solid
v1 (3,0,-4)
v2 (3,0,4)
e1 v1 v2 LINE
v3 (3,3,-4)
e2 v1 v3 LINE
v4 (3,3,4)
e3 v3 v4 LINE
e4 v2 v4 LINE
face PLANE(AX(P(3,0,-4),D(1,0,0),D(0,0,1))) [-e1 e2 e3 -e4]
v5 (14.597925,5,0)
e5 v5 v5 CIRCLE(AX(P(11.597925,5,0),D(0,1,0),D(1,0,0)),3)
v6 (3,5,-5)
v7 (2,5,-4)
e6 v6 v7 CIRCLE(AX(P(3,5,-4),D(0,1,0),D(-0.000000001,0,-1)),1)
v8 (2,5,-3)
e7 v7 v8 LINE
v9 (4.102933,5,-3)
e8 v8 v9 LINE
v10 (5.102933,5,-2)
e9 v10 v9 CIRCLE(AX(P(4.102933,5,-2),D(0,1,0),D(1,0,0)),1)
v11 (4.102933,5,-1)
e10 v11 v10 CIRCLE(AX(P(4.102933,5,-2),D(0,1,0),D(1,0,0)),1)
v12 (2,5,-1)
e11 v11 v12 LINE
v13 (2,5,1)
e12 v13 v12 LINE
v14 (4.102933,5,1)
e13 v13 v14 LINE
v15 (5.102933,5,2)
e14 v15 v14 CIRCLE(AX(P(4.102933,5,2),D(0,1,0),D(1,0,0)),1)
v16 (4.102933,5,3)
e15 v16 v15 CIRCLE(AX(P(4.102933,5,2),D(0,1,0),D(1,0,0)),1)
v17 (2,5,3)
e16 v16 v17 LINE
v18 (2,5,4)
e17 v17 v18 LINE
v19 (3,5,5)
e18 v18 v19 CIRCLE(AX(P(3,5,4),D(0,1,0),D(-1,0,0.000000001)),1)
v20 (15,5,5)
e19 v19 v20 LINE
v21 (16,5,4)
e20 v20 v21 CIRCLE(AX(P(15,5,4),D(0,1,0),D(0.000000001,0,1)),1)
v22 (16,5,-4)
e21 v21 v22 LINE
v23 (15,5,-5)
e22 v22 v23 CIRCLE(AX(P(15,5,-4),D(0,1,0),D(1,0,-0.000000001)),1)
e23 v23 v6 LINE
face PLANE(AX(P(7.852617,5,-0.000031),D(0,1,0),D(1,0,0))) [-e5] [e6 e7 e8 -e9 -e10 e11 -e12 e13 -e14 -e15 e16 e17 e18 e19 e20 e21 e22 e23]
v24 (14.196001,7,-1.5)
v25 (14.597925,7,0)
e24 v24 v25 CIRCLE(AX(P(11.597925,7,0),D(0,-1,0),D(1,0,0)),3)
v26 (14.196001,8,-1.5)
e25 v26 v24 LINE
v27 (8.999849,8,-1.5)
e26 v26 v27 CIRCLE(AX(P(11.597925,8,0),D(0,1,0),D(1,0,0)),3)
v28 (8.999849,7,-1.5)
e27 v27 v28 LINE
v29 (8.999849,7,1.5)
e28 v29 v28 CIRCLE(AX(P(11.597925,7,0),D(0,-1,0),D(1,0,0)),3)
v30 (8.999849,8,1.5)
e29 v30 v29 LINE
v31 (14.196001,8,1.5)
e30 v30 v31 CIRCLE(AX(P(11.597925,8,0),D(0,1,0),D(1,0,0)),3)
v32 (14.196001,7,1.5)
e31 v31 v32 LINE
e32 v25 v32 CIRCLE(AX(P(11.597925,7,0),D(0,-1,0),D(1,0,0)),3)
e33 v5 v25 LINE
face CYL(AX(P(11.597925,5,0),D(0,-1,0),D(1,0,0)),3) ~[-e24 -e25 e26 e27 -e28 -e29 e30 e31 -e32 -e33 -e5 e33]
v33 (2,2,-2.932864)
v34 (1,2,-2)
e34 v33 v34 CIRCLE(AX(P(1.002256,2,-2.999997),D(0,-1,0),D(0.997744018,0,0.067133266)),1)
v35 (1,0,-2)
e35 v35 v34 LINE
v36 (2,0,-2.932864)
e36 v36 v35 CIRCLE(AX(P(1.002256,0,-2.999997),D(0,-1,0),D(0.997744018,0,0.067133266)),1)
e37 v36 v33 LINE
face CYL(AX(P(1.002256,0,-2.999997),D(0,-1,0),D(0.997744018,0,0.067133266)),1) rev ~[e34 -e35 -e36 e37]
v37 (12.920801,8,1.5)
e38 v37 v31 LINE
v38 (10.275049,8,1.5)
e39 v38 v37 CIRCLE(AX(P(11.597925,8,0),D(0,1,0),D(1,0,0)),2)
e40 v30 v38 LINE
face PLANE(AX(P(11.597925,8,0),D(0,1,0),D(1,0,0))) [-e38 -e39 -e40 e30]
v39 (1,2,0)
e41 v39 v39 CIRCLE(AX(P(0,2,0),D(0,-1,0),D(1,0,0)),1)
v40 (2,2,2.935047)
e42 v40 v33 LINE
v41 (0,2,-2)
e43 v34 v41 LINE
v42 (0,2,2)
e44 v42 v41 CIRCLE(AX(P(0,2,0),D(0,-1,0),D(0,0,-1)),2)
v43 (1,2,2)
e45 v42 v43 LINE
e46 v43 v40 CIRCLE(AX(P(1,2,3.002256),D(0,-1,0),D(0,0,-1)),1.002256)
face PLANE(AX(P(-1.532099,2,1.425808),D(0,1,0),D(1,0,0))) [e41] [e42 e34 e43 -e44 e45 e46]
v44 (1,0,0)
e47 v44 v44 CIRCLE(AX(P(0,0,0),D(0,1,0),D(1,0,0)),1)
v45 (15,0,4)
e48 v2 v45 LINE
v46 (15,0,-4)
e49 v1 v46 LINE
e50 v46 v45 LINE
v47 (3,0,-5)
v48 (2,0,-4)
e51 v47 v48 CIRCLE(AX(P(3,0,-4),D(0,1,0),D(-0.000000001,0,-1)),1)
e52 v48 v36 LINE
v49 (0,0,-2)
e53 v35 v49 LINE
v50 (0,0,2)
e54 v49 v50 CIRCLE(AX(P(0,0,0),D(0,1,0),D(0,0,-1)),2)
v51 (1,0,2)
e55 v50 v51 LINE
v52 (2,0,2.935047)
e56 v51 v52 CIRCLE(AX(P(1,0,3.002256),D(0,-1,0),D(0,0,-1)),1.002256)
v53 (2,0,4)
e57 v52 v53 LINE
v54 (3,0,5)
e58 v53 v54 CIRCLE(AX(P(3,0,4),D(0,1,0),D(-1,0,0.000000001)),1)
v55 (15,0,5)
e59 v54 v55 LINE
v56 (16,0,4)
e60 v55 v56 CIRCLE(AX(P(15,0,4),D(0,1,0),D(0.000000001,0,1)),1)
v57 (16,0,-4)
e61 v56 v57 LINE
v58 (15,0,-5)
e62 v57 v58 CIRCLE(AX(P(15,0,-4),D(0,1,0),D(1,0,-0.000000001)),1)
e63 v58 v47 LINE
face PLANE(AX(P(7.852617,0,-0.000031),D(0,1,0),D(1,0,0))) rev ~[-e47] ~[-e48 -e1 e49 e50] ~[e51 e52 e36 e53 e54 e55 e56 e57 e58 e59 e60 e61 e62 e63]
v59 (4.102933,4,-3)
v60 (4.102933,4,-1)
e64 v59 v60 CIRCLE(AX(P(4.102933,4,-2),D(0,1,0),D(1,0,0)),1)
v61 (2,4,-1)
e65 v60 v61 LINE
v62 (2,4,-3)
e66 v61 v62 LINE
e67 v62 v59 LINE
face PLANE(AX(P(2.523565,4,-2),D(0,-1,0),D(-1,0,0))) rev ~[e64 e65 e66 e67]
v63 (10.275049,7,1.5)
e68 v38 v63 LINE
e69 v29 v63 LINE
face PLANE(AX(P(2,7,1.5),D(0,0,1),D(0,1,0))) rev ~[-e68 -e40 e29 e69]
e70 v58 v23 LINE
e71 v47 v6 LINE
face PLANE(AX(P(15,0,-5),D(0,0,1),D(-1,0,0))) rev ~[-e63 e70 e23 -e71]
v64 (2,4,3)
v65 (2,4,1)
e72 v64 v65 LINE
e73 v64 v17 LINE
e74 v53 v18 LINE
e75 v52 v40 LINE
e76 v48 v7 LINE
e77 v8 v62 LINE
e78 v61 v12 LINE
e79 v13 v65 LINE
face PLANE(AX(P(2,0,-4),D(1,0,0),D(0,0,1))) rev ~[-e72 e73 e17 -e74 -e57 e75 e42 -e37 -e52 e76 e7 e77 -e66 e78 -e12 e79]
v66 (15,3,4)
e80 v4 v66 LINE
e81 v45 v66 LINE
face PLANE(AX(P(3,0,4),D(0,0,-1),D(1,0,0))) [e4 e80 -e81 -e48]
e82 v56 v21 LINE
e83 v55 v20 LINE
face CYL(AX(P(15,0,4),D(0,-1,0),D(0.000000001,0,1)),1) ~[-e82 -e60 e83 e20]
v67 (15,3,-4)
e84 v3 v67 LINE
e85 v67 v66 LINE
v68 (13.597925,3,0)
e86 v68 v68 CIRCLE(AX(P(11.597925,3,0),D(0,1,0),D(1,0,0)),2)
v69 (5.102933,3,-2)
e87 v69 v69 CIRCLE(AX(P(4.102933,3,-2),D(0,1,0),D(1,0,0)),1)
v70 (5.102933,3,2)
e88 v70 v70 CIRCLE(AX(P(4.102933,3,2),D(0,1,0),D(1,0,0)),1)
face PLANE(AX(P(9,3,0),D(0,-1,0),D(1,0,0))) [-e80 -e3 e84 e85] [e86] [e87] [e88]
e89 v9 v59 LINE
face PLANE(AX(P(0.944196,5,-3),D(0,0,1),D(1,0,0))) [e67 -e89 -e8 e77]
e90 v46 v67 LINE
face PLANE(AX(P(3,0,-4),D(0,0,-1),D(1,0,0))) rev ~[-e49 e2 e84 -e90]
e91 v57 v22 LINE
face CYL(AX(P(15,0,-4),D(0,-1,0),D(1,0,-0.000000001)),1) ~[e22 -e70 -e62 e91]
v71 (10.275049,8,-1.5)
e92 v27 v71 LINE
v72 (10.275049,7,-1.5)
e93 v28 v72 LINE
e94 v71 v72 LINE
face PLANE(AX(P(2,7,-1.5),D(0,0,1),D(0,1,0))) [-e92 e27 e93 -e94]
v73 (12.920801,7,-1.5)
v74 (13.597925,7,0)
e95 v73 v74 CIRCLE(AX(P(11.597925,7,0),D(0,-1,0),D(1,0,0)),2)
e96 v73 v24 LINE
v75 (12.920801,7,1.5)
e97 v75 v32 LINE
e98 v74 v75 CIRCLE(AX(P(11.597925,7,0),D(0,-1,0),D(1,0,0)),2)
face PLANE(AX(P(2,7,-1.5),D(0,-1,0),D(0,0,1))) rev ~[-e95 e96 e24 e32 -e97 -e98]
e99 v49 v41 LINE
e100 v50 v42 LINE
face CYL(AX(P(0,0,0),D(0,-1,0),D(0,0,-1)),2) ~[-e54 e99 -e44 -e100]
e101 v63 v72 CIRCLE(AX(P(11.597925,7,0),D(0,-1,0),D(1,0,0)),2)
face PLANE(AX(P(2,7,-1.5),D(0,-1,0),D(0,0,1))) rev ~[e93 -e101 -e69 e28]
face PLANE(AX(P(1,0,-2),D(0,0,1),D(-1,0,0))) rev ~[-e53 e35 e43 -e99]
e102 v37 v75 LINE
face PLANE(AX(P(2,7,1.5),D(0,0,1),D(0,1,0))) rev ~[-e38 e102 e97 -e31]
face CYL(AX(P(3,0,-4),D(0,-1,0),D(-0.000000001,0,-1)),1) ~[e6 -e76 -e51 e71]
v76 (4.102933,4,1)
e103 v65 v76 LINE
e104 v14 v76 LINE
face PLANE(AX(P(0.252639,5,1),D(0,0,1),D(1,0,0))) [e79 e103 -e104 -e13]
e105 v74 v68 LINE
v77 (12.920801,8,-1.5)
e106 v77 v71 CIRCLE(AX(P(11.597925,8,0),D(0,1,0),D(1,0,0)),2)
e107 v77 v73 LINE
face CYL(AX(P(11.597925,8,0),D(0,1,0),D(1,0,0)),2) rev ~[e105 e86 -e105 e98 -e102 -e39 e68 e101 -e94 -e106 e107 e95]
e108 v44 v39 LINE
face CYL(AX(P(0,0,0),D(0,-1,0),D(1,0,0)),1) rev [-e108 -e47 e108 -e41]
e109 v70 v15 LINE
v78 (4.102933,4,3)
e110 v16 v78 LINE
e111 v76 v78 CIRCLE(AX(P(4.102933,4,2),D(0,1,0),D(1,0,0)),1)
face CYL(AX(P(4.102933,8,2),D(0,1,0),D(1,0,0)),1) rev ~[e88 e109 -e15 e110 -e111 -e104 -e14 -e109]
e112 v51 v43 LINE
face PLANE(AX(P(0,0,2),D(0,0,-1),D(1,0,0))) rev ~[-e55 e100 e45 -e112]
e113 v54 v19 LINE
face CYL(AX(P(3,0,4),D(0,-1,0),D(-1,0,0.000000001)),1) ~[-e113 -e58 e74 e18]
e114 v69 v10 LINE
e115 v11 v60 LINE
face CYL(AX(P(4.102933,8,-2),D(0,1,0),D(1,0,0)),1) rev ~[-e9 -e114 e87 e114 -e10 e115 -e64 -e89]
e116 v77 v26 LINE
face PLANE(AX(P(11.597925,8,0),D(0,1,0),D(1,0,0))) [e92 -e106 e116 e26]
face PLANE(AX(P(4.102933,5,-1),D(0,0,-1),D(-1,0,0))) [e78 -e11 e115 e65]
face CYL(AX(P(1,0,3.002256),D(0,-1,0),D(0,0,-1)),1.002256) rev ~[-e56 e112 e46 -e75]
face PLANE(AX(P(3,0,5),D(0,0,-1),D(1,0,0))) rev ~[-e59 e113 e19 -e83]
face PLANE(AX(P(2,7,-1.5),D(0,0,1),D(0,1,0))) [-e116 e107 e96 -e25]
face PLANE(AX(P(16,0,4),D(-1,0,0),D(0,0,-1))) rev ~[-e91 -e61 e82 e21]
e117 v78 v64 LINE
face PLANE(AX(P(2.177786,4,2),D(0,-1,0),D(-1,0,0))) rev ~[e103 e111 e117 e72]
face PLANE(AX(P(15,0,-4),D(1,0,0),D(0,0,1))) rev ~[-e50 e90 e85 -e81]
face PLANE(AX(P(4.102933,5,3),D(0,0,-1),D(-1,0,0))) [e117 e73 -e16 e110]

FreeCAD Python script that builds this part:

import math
import FreeCAD as App
import Part
import Sketcher


def add_polygon(sketch, points):
    """Adds a closed chain of lines whose ends are joined by coincident constraints."""
    first, n = sketch.GeometryCount, len(points)
    for a, b in zip(points, points[1:] + points[:1]):
        sketch.addGeometry(Part.LineSegment(App.Vector(*a, 0), App.Vector(*b, 0)), False)
    for i in range(n):
        sketch.addConstraint(Sketcher.Constraint("Coincident", first + i, 2, first + (i + 1) % n, 1))

doc = App.newDocument("Part")
params = doc.addObject("Spreadsheet::Sheet", "Params")
for row, (alias, value) in enumerate([
    ("sketch1_diameter", "2 mm"),
    ("sketch1_radius", "2 mm"),
    ("sketch1_width", "1 mm"),
    ("sketch1_width2", "12 mm"),
    ("sketch1_height", "8 mm"),
    ("pad1_length", "5 mm"),
    ("sketch2_width", "12 mm"),
    ("sketch2_height", "8 mm"),
    ("pocket1_length", "3 mm"),
    ("sketch3_diameter", "6 mm"),
    ("sketch3_diameter2", "4 mm"),
    ("pad2_length", "3 mm"),
    ("sketch4_width", "1 mm"),
    ("sketch4_height", "3 mm"),
    ("pocket2_length", "17 mm"),
    ("sketch5_diameter", "4 mm"),
    ("sketch5_diameter2", "2 mm"),
    ("pocket3_length", "6 mm"),
    ("sketch6_radius", "1 mm"),
    ("pocket4_length", "1 mm"),
], start=1):
    params.set(f"A{row}", alias)
    params.set(f"B{row}", "=" + value)
    params.setAlias(f"B{row}", alias)

body = doc.addObject("PartDesign::Body", "Body")

sketch1 = doc.addObject("Sketcher::SketchObject", "Sketch")
body.addObject(sketch1)
sketch1.AttachmentSupport = (doc.XZ_Plane, [""])
sketch1.MapMode = "FlatFace"
sketch1.addGeometry(Part.LineSegment(App.Vector(1, -2, 0), App.Vector(0, -2, 0)), False)
sketch1.addGeometry(Part.ArcOfCircle(Part.Circle(App.Vector(0, 0, 0), App.Vector(0, 0, 1), 2), math.radians(90), math.radians(270)), False)
sketch1.addGeometry(Part.LineSegment(App.Vector(0, 2, 0), App.Vector(1, 2, 0)), False)
sketch1.addGeometry(Part.ArcOfCircle(Part.Circle(App.Vector(1, 3, 0), App.Vector(0, 0, 1), 1), math.radians(-90), math.radians(-4)), False)
sketch1.addGeometry(Part.LineSegment(App.Vector(2, 2.9, 0), App.Vector(2, 4, 0)), False)
sketch1.addGeometry(Part.ArcOfCircle(Part.Circle(App.Vector(3, 4, 0), App.Vector(0, 0, 1), 1), math.radians(90), math.radians(180)), False)
sketch1.addGeometry(Part.LineSegment(App.Vector(3, 5, 0), App.Vector(15, 5, 0)), False)
sketch1.addGeometry(Part.ArcOfCircle(Part.Circle(App.Vector(15, 4, 0), App.Vector(0, 0, 1), 1), math.radians(0), math.radians(90)), False)
sketch1.addGeometry(Part.LineSegment(App.Vector(16, 4, 0), App.Vector(16, -4, 0)), False)
sketch1.addGeometry(Part.ArcOfCircle(Part.Circle(App.Vector(15, -4, 0), App.Vector(0, 0, 1), 1), math.radians(-90), math.radians(0)), False)
sketch1.addGeometry(Part.LineSegment(App.Vector(15, -5, 0), App.Vector(3, -5, 0)), False)
sketch1.addGeometry(Part.ArcOfCircle(Part.Circle(App.Vector(3, -4, 0), App.Vector(0, 0, 1), 1), math.radians(-180), math.radians(-90)), False)
sketch1.addGeometry(Part.LineSegment(App.Vector(2, -4, 0), App.Vector(2, -2.9, 0)), False)
sketch1.addGeometry(Part.ArcOfCircle(Part.Circle(App.Vector(1, -3, 0), App.Vector(0, 0, 1), 1), math.radians(4), math.radians(90)), False)
sketch1.addGeometry(Part.Circle(App.Vector(0, 0, 0), App.Vector(0, 0, 1), 1), False)
sketch1.addConstraint(Sketcher.Constraint("Tangent", 0, 2, 1, 2))
sketch1.addConstraint(Sketcher.Constraint("Tangent", 1, 1, 2, 1))
sketch1.addConstraint(Sketcher.Constraint("Tangent", 2, 2, 3, 1))
sketch1.addConstraint(Sketcher.Constraint("Coincident", 3, 2, 4, 1))
sketch1.addConstraint(Sketcher.Constraint("Tangent", 4, 2, 5, 2))
sketch1.addConstraint(Sketcher.Constraint("Tangent", 5, 1, 6, 1))
sketch1.addConstraint(Sketcher.Constraint("Tangent", 6, 2, 7, 2))
sketch1.addConstraint(Sketcher.Constraint("Tangent", 7, 1, 8, 1))
sketch1.addConstraint(Sketcher.Constraint("Tangent", 8, 2, 9, 2))
sketch1.addConstraint(Sketcher.Constraint("Tangent", 9, 1, 10, 1))
sketch1.addConstraint(Sketcher.Constraint("Tangent", 10, 2, 11, 2))
sketch1.addConstraint(Sketcher.Constraint("Tangent", 11, 1, 12, 1))
sketch1.addConstraint(Sketcher.Constraint("Coincident", 12, 2, 13, 1))
sketch1.addConstraint(Sketcher.Constraint("Coincident", 13, 2, 0, 1))
sketch1.addConstraint(Sketcher.Constraint("Horizontal", 0))
sketch1.addConstraint(Sketcher.Constraint("Horizontal", 2))
sketch1.addConstraint(Sketcher.Constraint("Vertical", 4))
sketch1.addConstraint(Sketcher.Constraint("Horizontal", 6))
sketch1.addConstraint(Sketcher.Constraint("Vertical", 8))
sketch1.addConstraint(Sketcher.Constraint("Horizontal", 10))
sketch1.addConstraint(Sketcher.Constraint("Vertical", 12))
sketch1.addConstraint(Sketcher.Constraint("Coincident", 1, 3, -1, 1))
sketch1.addConstraint(Sketcher.Constraint("Coincident", 14, 3, -1, 1))
sketch1.addConstraint(Sketcher.Constraint("Equal", 5, 7))
sketch1.addConstraint(Sketcher.Constraint("Equal", 7, 9))
sketch1.addConstraint(Sketcher.Constraint("Equal", 9, 11))
sketch1.addConstraint(Sketcher.Constraint("Equal", 11, 13))
sketch1.addConstraint(Sketcher.Constraint("Equal", 13, 14))
sketch1.addConstraint(Sketcher.Constraint("Symmetric", 5, 3, 11, 3, -1))
sketch1.addConstraint(Sketcher.Constraint("Vertical", 2, 2, 13, 2))
sketch1.addConstraint(Sketcher.Constraint("Diameter", 14, 2.0))
sketch1.addConstraint(Sketcher.Constraint("Radius", 1, 2.0))
sketch1.addConstraint(Sketcher.Constraint("DistanceX", 0, 2, 0, 1, 1.0))
sketch1.addConstraint(Sketcher.Constraint("DistanceX", 6, 1, 6, 2, 12.0))
sketch1.addConstraint(Sketcher.Constraint("DistanceY", 8, 2, 8, 1, 8.0))
sketch1.addConstraint(Sketcher.Constraint("DistanceX", -1, 1, 5, 3, 3.0))
sketch1.addConstraint(Sketcher.Constraint("Radius", 3, 1.002256))
sketch1.addConstraint(Sketcher.Constraint("DistanceY", 12, 1, 12, 2, 1.067136))
sketch1.setExpression("Constraints[30]", "Params.sketch1_diameter")
sketch1.setExpression("Constraints[31]", "Params.sketch1_radius")
sketch1.setExpression("Constraints[32]", "Params.sketch1_width")
sketch1.setExpression("Constraints[33]", "Params.sketch1_width2")
sketch1.setExpression("Constraints[34]", "Params.sketch1_height")
pad1 = doc.addObject("PartDesign::Pad", "Pad")
body.addObject(pad1)
pad1.Profile = sketch1
pad1.setExpression("Length", "Params.pad1_length")
pad1.Reversed = True

sketch2 = doc.addObject("Sketcher::SketchObject", "Sketch001")
body.addObject(sketch2)
sketch2.AttachmentSupport = (doc.XZ_Plane, [""])
sketch2.MapMode = "FlatFace"
add_polygon(sketch2, [(3, 4), (3, -4), (15, -4), (15, 4)])
sketch2.addConstraint(Sketcher.Constraint("Vertical", 0))
sketch2.addConstraint(Sketcher.Constraint("Horizontal", 1))
sketch2.addConstraint(Sketcher.Constraint("Vertical", 2))
sketch2.addConstraint(Sketcher.Constraint("Horizontal", 3))
sketch2.addConstraint(Sketcher.Constraint("DistanceX", 1, 1, 1, 2, 12.0))
sketch2.addConstraint(Sketcher.Constraint("DistanceY", 0, 2, 0, 1, 8.0))
sketch2.addConstraint(Sketcher.Constraint("DistanceX", -1, 1, 0, 2, 3.0))
sketch2.addConstraint(Sketcher.Constraint("DistanceY", 0, 2, -1, 1, 4.0))
sketch2.setExpression("Constraints[8]", "Params.sketch2_width")
sketch2.setExpression("Constraints[9]", "Params.sketch2_height")
pocket1 = doc.addObject("PartDesign::Pocket", "Pocket")
body.addObject(pocket1)
pocket1.Profile = sketch2
pocket1.setExpression("Length", "Params.pocket1_length")

sketch3 = doc.addObject("Sketcher::SketchObject", "Sketch002")
body.addObject(sketch3)
sketch3.AttachmentSupport = (doc.XZ_Plane, [""])
sketch3.MapMode = "FlatFace"
sketch3.AttachmentOffset = App.Placement(App.Vector(0, 0, -5), App.Rotation())
sketch3.addGeometry(Part.Circle(App.Vector(11.6, 0, 0), App.Vector(0, 0, 1), 3), False)
sketch3.addGeometry(Part.Circle(App.Vector(11.6, 0, 0), App.Vector(0, 0, 1), 2), False)
sketch3.addConstraint(Sketcher.Constraint("Coincident", 1, 3, 0, 3))
sketch3.addConstraint(Sketcher.Constraint("PointOnObject", 0, 3, -1))
sketch3.addConstraint(Sketcher.Constraint("Diameter", 0, 6.0))
sketch3.addConstraint(Sketcher.Constraint("Diameter", 1, 4.0))
sketch3.addConstraint(Sketcher.Constraint("DistanceX", -1, 1, 0, 3, 11.597925))
sketch3.setExpression("Constraints[2]", "Params.sketch3_diameter")
sketch3.setExpression("Constraints[3]", "Params.sketch3_diameter2")
pad2 = doc.addObject("PartDesign::Pad", "Pad001")
body.addObject(pad2)
pad2.Profile = sketch3
pad2.setExpression("Length", "Params.pad2_length")
pad2.Reversed = True

sketch4 = doc.addObject("Sketcher::SketchObject", "Sketch003")
body.addObject(sketch4)
sketch4.AttachmentSupport = (doc.YZ_Plane, [""])
sketch4.MapMode = "FlatFace"
sketch4.AttachmentOffset = App.Placement(App.Vector(0, 0, 2), App.Rotation())
add_polygon(sketch4, [(8, -1.5), (7, -1.5), (7, 1.5), (8, 1.5)])
sketch4.addConstraint(Sketcher.Constraint("Horizontal", 0))
sketch4.addConstraint(Sketcher.Constraint("Vertical", 1))
sketch4.addConstraint(Sketcher.Constraint("Horizontal", 2))
sketch4.addConstraint(Sketcher.Constraint("Vertical", 3))
sketch4.addConstraint(Sketcher.Constraint("DistanceX", 0, 2, 0, 1, 1.0))
sketch4.addConstraint(Sketcher.Constraint("DistanceY", 1, 1, 1, 2, 3.0))
sketch4.addConstraint(Sketcher.Constraint("DistanceX", -1, 1, 0, 2, 7.0))
sketch4.addConstraint(Sketcher.Constraint("DistanceY", 0, 2, -1, 1, 1.5))
sketch4.setExpression("Constraints[8]", "Params.sketch4_width")
sketch4.setExpression("Constraints[9]", "Params.sketch4_height")
pocket2 = doc.addObject("PartDesign::Pocket", "Pocket001")
body.addObject(pocket2)
pocket2.Profile = sketch4
pocket2.setExpression("Length", "Params.pocket2_length")
pocket2.Reversed = True

sketch5 = doc.addObject("Sketcher::SketchObject", "Sketch004")
body.addObject(sketch5)
sketch5.AttachmentSupport = (doc.XZ_Plane, [""])
sketch5.MapMode = "FlatFace"
sketch5.AttachmentOffset = App.Placement(App.Vector(0, 0, -8), App.Rotation())
sketch5.addGeometry(Part.Circle(App.Vector(11.6, 0, 0), App.Vector(0, 0, 1), 2), False)
sketch5.addGeometry(Part.Circle(App.Vector(4.1, 2, 0), App.Vector(0, 0, 1), 1), False)
sketch5.addGeometry(Part.Circle(App.Vector(4.1, -2, 0), App.Vector(0, 0, 1), 1), False)
add_polygon(sketch5, [(-5.1, -2.9), (-5.1, 5.8), (2, 5.8), (2, -2.9)])
sketch5.addConstraint(Sketcher.Constraint("Vertical", 3))
sketch5.addConstraint(Sketcher.Constraint("Horizontal", 4))
sketch5.addConstraint(Sketcher.Constraint("Vertical", 5))
sketch5.addConstraint(Sketcher.Constraint("Horizontal", 6))
sketch5.addConstraint(Sketcher.Constraint("Equal", 1, 2))
sketch5.addConstraint(Sketcher.Constraint("Symmetric", 1, 3, 2, 3, -1))
sketch5.addConstraint(Sketcher.Constraint("PointOnObject", 0, 3, -1))
sketch5.addConstraint(Sketcher.Constraint("Diameter", 0, 4.0))
sketch5.addConstraint(Sketcher.Constraint("Diameter", 1, 2.0))
sketch5.addConstraint(Sketcher.Constraint("DistanceY", -1, 1, 1, 3, 2.0))
sketch5.addConstraint(Sketcher.Constraint("DistanceX", -1, 1, 4, 2, 2.0))
sketch5.addConstraint(Sketcher.Constraint("DistanceX", 4, 1, 4, 2, 7.064198))
sketch5.addConstraint(Sketcher.Constraint("DistanceY", 3, 1, 3, 2, 8.717344))
sketch5.addConstraint(Sketcher.Constraint("DistanceY", -1, 1, 3, 2, 5.78448))
sketch5.addConstraint(Sketcher.Constraint("DistanceX", 1, 3, 0, 3, 7.494991))
sketch5.addConstraint(Sketcher.Constraint("DistanceX", 3, 2, 1, 3, 9.167132))
sketch5.setExpression("Constraints[11]", "Params.sketch5_diameter")
sketch5.setExpression("Constraints[12]", "Params.sketch5_diameter2")
pocket3 = doc.addObject("PartDesign::Pocket", "Pocket002")
body.addObject(pocket3)
pocket3.Profile = sketch5
pocket3.setExpression("Length", "Params.pocket3_length")
pocket3.Reversed = True

sketch6 = doc.addObject("Sketcher::SketchObject", "Sketch005")
body.addObject(sketch6)
sketch6.AttachmentSupport = (doc.XZ_Plane, [""])
sketch6.MapMode = "FlatFace"
sketch6.AttachmentOffset = App.Placement(App.Vector(0, 0, -5), App.Rotation())
sketch6.addGeometry(Part.LineSegment(App.Vector(0.3, 3, 0), App.Vector(4.1, 3, 0)), False)
sketch6.addGeometry(Part.ArcOfCircle(Part.Circle(App.Vector(4.1, 2, 0), App.Vector(0, 0, 1), 1), math.radians(-90), math.radians(90)), False)
sketch6.addGeometry(Part.LineSegment(App.Vector(4.1, 1, 0), App.Vector(0.3, 1, 0)), False)
sketch6.addGeometry(Part.ArcOfCircle(Part.Circle(App.Vector(0.3, 2, 0), App.Vector(0, 0, 1), 1), math.radians(90), math.radians(270)), False)
sketch6.addGeometry(Part.LineSegment(App.Vector(0.9, -1, 0), App.Vector(4.1, -1, 0)), False)
sketch6.addGeometry(Part.ArcOfCircle(Part.Circle(App.Vector(4.1, -2, 0), App.Vector(0, 0, 1), 1), math.radians(-90), math.radians(90)), False)
sketch6.addGeometry(Part.LineSegment(App.Vector(4.1, -3, 0), App.Vector(0.9, -3, 0)), False)
sketch6.addGeometry(Part.ArcOfCircle(Part.Circle(App.Vector(0.9, -2, 0), App.Vector(0, 0, 1), 1), math.radians(90), math.radians(270)), False)
sketch6.addConstraint(Sketcher.Constraint("Tangent", 0, 2, 1, 2))
sketch6.addConstraint(Sketcher.Constraint("Tangent", 1, 1, 2, 1))
sketch6.addConstraint(Sketcher.Constraint("Tangent", 2, 2, 3, 2))
sketch6.addConstraint(Sketcher.Constraint("Tangent", 3, 1, 0, 1))
sketch6.addConstraint(Sketcher.Constraint("Tangent", 4, 2, 5, 2))
sketch6.addConstraint(Sketcher.Constraint("Tangent", 5, 1, 6, 1))
sketch6.addConstraint(Sketcher.Constraint("Tangent", 6, 2, 7, 2))
sketch6.addConstraint(Sketcher.Constraint("Tangent", 7, 1, 4, 1))
sketch6.addConstraint(Sketcher.Constraint("Horizontal", 0))
sketch6.addConstraint(Sketcher.Constraint("Horizontal", 2))
sketch6.addConstraint(Sketcher.Constraint("Horizontal", 4))
sketch6.addConstraint(Sketcher.Constraint("Horizontal", 6))
sketch6.addConstraint(Sketcher.Constraint("Equal", 3, 5))
sketch6.addConstraint(Sketcher.Constraint("Symmetric", 1, 3, 5, 3, -1))
sketch6.addConstraint(Sketcher.Constraint("Radius", 1, 1.0))
sketch6.addConstraint(Sketcher.Constraint("DistanceY", -1, 1, 1, 3, 2.0))
sketch6.addConstraint(Sketcher.Constraint("DistanceX", 0, 1, 0, 2, 3.850295))
sketch6.addConstraint(Sketcher.Constraint("DistanceX", 4, 1, 4, 2, 3.158737))
sketch6.addConstraint(Sketcher.Constraint("DistanceX", -1, 1, 3, 3, 0.252639))
sketch6.setExpression("Constraints[14]", "Params.sketch6_radius")
pocket4 = doc.addObject("PartDesign::Pocket", "Pocket003")
body.addObject(pocket4)
pocket4.Profile = sketch6
pocket4.setExpression("Length", "Params.pocket4_length")
pocket4.Reversed = True

doc.recompute()
